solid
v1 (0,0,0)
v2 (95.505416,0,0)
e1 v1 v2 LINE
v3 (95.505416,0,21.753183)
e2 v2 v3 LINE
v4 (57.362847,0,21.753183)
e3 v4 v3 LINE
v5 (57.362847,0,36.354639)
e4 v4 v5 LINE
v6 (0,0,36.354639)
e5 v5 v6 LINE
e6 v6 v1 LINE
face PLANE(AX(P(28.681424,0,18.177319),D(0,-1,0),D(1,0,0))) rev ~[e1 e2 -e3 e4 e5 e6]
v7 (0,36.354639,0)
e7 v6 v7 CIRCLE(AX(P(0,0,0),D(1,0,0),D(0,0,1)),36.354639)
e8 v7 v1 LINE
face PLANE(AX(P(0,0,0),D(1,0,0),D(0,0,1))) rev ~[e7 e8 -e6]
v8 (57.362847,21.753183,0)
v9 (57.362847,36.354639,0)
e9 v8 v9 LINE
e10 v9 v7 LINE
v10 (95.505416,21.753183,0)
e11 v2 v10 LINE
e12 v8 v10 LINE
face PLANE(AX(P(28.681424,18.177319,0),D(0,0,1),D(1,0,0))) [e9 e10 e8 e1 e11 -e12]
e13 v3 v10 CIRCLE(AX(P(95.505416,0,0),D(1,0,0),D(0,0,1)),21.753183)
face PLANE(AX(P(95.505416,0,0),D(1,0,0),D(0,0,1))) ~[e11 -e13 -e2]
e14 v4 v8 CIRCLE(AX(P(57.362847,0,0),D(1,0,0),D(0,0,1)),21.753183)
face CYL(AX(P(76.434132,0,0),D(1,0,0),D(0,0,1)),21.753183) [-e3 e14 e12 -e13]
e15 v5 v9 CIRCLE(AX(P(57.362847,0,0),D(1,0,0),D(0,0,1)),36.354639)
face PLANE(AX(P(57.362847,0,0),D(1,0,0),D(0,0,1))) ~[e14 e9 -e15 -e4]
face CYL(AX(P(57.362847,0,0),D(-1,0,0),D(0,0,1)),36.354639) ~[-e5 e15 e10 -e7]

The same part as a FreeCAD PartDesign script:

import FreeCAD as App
import Part
import Sketcher
from FreeCAD import Vector
Q = App.Units.Quantity

doc = App.newDocument("Part")
body = doc.addObject("PartDesign::Body", "Body")

# Sketch on XZ plane
sketch1 = doc.addObject("Sketcher::SketchObject", "Sketch")
body.addObject(sketch1)
sketch1.AttachmentSupport = (doc.XZ_Plane, [""])
sketch1.MapMode = "FlatFace"
sketch1.addGeometry(Part.LineSegment(Vector(0, 36.354639, 0), Vector(0, 0, 0)), False)
sketch1.addGeometry(Part.LineSegment(Vector(0, 0, 0), Vector(95.505416, 0, 0)), False)
sketch1.addGeometry(Part.LineSegment(Vector(95.505416, 0, 0), Vector(95.505416, 21.753183, 0)), False)
sketch1.addGeometry(Part.LineSegment(Vector(95.505416, 21.753183, 0), Vector(57.362847, 21.753183, 0)), False)
sketch1.addGeometry(Part.LineSegment(Vector(57.362847, 21.753183, 0), Vector(57.362847, 36.354639, 0)), False)
sketch1.addGeometry(Part.LineSegment(Vector(57.362847, 36.354639, 0), Vector(0, 36.354639, 0)), False)
sketch1.addConstraint(Sketcher.Constraint("Coincident", 0, 2, 1, 1))
sketch1.addConstraint(Sketcher.Constraint("Coincident", 1, 2, 2, 1))
sketch1.addConstraint(Sketcher.Constraint("Coincident", 2, 2, 3, 1))
sketch1.addConstraint(Sketcher.Constraint("Coincident", 3, 2, 4, 1))
sketch1.addConstraint(Sketcher.Constraint("Coincident", 4, 2, 5, 1))
sketch1.addConstraint(Sketcher.Constraint("Coincident", 5, 2, 0, 1))
sketch1.addConstraint(Sketcher.Constraint("Vertical", 0))
sketch1.addConstraint(Sketcher.Constraint("Horizontal", 1))
sketch1.addConstraint(Sketcher.Constraint("Vertical", 2))
sketch1.addConstraint(Sketcher.Constraint("Horizontal", 3))
sketch1.addConstraint(Sketcher.Constraint("Vertical", 4))
sketch1.addConstraint(Sketcher.Constraint("Horizontal", 5))
sketch1.addConstraint(Sketcher.Constraint("Coincident", 0, 2, -1, 1))
sketch1.addConstraint(Sketcher.Constraint("DistanceX", 3, 2, 3, 1, Q("38.142569 mm")))
sketch1.addConstraint(Sketcher.Constraint("DistanceY", 0, 2, 0, 1, Q("36.354639 mm")))
sketch1.addConstraint(Sketcher.Constraint("DistanceX", 1, 1, 1, 2, Q("95.505416 mm")))
sketch1.addConstraint(Sketcher.Constraint("DistanceY", 2, 1, 2, 2, Q("21.753183 mm")))
revolution = doc.addObject("PartDesign::Revolution", "Revolution")
body.addObject(revolution)
revolution.Profile = sketch1
revolution.ReferenceAxis = (sketch1, ["H_Axis"])
revolution.Angle = 270

doc.recompute()
